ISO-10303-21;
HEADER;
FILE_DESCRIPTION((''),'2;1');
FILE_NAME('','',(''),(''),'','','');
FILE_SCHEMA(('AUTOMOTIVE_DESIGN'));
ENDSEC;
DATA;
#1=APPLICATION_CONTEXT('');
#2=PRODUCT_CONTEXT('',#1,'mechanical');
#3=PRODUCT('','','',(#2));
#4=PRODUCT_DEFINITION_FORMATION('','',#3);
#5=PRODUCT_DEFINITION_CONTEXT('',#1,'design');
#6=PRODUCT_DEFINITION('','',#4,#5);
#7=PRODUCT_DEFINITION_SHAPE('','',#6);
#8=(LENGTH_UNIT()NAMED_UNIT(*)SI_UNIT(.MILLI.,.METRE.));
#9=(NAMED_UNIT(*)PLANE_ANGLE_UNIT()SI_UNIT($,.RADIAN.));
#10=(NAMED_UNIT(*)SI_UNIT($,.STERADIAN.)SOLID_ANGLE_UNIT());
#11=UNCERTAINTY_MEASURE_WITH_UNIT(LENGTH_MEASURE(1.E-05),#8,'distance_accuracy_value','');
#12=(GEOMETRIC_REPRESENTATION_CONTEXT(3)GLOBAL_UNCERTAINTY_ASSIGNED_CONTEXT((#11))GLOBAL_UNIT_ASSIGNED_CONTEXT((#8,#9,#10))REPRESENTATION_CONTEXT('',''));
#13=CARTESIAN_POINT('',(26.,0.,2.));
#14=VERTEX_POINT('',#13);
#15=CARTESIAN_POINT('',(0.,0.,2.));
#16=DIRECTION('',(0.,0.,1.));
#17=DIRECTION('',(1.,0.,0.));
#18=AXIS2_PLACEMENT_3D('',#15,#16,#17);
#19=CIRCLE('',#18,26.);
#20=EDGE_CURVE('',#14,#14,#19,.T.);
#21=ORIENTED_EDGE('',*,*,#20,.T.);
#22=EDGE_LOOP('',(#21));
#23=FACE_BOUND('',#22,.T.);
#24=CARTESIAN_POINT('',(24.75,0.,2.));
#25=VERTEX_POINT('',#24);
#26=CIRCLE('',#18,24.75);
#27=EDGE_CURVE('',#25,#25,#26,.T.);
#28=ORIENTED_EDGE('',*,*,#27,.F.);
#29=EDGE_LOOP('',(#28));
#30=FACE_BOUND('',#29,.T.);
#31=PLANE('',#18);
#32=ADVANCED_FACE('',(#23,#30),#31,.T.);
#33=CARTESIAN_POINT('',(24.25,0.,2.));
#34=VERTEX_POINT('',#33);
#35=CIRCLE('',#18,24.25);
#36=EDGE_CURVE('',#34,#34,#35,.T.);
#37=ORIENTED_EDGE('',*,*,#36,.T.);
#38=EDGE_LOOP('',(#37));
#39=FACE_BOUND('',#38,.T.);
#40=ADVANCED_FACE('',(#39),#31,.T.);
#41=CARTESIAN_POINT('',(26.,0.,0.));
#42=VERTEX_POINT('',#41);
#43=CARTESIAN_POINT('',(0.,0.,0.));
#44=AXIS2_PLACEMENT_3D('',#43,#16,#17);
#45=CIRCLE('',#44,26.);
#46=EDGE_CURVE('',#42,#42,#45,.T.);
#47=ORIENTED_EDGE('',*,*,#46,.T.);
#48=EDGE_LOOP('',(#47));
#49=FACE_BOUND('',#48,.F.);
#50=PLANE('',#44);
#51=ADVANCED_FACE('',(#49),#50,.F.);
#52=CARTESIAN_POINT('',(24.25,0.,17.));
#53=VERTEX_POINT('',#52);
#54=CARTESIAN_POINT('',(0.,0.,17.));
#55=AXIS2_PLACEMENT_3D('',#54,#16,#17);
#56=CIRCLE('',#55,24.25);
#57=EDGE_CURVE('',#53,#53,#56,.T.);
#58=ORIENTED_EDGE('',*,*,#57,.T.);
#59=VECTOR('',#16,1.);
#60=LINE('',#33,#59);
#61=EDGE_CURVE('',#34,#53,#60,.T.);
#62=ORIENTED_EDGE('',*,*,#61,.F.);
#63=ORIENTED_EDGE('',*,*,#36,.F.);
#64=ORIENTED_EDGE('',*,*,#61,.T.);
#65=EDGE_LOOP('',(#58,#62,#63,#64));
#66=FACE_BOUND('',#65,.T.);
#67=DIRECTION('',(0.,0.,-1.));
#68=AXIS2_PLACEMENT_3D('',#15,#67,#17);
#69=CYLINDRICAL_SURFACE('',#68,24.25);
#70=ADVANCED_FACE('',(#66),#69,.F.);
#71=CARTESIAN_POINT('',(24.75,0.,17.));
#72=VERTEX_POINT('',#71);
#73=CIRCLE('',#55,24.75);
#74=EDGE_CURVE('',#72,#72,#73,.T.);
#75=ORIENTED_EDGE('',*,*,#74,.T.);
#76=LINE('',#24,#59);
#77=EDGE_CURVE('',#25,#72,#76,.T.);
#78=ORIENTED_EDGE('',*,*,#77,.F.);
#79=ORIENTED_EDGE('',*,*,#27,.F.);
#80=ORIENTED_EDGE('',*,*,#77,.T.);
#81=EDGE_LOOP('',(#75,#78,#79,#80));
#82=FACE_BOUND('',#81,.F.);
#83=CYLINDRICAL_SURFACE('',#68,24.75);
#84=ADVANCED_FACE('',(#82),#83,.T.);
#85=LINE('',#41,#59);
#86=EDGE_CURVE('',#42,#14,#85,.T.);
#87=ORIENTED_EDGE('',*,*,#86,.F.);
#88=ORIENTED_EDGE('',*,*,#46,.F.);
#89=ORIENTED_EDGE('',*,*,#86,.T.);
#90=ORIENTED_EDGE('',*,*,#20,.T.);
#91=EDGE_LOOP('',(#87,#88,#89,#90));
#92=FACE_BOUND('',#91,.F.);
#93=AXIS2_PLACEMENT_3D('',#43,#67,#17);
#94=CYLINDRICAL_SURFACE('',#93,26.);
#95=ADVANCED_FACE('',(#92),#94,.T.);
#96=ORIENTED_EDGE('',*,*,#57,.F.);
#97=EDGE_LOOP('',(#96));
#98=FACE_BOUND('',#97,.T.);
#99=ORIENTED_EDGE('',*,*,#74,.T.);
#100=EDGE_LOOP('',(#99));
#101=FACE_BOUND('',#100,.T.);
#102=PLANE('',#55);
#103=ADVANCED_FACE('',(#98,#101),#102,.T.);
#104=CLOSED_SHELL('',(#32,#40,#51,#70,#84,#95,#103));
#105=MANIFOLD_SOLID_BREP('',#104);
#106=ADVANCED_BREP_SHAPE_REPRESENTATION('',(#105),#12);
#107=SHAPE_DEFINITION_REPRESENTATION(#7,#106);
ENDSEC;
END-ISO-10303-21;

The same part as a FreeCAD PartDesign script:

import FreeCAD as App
import Part
import Sketcher

V = App.Vector
Q = App.Units.Quantity

doc = App.newDocument("Part")
body = doc.addObject("PartDesign::Body", "Body")

# Sketch on XY plane
sketch1 = body.newObject("Sketcher::SketchObject", "Sketch")
sketch1.AttachmentSupport = (doc.getObject("XY_Plane"), [""])
sketch1.MapMode = "FlatFace"
sketch1.addGeometry(Part.Circle(V(0, 0, 0), V(0, 0, 1), 26), False)
sketch1.addConstraint(Sketcher.Constraint("Coincident", 0, 3, -1, 1))
sketch1.addConstraint(Sketcher.Constraint("Diameter", 0, Q("52 mm")))
pad1 = body.newObject("PartDesign::Pad", "Pad")
pad1.Profile = sketch1
pad1.Length = 2

# Sketch on XY plane
sketch2 = body.newObject("Sketcher::SketchObject", "Sketch001")
sketch2.AttachmentSupport = (doc.getObject("XY_Plane"), [""])
sketch2.MapMode = "FlatFace"
sketch2.AttachmentOffset = App.Placement(V(0, 0, 2), App.Rotation())
sketch2.addGeometry(Part.Circle(V(0, 0, 0), V(0, 0, 1), 24.75), False)
sketch2.addGeometry(Part.Circle(V(0, 0, 0), V(0, 0, 1), 24.25), False)
sketch2.addConstraint(Sketcher.Constraint("Coincident", 0, 3, -1, 1))
sketch2.addConstraint(Sketcher.Constraint("Coincident", 1, 3, -1, 1))
sketch2.addConstraint(Sketcher.Constraint("Diameter", 0, Q("49.5 mm")))
sketch2.addConstraint(Sketcher.Constraint("Diameter", 1, Q("48.5 mm")))
pad2 = body.newObject("PartDesign::Pad", "Pad001")
pad2.Profile = sketch2
pad2.Length = 15

doc.recompute()
